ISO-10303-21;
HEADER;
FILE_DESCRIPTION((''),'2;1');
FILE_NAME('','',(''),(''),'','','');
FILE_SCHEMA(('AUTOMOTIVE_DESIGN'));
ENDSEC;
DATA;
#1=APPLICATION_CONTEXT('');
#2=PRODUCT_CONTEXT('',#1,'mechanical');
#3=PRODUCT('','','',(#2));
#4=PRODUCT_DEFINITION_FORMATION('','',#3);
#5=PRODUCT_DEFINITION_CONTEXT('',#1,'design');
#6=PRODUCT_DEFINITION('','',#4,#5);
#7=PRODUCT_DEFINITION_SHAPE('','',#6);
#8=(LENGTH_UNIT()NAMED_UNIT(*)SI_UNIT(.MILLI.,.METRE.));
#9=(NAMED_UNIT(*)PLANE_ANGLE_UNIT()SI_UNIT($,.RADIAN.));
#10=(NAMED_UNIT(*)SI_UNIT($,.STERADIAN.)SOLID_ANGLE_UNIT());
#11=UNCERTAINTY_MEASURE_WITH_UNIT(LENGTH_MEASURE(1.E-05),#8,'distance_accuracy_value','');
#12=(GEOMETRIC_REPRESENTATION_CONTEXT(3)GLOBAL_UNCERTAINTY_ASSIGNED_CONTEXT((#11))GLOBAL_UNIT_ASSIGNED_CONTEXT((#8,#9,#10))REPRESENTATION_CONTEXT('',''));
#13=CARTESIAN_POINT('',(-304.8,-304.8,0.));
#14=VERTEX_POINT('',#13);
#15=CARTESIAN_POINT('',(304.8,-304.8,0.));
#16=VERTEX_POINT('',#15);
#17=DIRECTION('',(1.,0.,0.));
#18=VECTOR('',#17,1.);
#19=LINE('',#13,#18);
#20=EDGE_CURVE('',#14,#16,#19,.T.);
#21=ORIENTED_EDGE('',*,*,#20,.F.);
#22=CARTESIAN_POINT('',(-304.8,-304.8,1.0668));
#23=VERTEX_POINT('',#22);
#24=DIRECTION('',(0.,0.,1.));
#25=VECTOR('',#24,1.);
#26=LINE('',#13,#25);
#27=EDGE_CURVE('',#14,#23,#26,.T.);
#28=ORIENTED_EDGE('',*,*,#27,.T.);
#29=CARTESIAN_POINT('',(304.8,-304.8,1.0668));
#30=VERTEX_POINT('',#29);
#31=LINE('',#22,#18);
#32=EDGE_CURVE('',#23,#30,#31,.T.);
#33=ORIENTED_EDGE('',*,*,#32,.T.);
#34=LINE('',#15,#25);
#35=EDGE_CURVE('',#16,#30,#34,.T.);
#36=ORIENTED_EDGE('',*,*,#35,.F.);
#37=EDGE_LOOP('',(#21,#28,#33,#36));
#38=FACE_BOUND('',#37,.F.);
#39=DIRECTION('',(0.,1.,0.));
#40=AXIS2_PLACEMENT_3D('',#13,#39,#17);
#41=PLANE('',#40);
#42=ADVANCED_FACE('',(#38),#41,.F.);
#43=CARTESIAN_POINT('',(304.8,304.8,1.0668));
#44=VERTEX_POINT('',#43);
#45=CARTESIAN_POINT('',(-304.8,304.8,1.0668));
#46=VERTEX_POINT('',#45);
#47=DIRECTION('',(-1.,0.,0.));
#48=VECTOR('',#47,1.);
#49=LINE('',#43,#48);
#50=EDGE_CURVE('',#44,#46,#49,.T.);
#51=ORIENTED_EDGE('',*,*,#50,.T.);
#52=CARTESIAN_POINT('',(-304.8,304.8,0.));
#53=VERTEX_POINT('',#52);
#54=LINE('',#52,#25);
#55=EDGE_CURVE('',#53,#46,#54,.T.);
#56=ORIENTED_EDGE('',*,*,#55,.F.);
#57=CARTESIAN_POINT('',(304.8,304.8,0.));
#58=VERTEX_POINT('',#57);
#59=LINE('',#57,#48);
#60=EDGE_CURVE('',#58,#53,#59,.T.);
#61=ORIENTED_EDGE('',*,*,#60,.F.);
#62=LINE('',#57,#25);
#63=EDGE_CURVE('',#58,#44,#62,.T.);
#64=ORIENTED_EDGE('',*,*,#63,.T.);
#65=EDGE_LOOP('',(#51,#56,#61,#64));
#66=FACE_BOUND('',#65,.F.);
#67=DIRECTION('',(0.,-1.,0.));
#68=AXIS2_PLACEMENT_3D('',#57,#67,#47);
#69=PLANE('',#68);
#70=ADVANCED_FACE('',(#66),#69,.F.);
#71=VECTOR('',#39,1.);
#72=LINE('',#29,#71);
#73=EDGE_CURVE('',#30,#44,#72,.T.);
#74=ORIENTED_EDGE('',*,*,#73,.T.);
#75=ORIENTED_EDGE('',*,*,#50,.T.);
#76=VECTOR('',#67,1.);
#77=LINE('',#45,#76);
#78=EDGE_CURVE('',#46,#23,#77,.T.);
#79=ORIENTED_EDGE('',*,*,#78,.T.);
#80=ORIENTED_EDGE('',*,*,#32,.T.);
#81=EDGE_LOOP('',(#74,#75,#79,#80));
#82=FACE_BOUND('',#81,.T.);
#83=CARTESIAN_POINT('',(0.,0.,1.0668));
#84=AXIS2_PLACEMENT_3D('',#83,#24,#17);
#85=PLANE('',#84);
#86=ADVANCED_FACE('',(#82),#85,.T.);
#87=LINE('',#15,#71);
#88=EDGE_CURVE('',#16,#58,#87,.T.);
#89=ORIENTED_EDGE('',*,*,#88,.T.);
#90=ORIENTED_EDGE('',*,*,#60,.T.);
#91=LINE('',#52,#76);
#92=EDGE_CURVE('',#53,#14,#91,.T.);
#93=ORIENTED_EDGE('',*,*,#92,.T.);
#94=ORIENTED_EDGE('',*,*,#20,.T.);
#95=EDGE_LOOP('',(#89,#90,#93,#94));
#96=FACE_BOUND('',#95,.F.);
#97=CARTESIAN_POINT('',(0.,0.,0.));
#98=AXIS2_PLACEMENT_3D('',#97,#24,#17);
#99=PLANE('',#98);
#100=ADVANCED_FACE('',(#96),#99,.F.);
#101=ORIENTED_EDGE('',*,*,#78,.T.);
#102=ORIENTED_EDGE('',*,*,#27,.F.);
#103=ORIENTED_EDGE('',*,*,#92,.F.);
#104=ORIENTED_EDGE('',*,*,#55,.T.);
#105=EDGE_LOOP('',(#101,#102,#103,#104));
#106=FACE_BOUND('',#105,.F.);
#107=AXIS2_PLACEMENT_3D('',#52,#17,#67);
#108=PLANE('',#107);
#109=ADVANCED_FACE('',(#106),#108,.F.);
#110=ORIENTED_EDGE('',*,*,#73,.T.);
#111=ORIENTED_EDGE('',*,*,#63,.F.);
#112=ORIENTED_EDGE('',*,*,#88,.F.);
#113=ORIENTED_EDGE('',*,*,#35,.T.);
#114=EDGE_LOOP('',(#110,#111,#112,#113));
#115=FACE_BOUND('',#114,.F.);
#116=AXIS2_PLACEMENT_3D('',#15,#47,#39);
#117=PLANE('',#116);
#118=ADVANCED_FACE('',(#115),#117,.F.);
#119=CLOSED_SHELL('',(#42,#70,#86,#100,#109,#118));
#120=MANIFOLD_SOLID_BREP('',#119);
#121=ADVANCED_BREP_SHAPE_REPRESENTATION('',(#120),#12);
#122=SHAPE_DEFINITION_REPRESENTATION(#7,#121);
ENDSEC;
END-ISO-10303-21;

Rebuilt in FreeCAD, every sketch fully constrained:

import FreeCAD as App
import Part
import Sketcher
from FreeCAD import Vector
Q = App.Units.Quantity

doc = App.newDocument("Part")
params = doc.addObject("Spreadsheet::Sheet", "Params")
for row, (alias, value) in enumerate([
    ("sketch1_width", "24 in"),
    ("pad1_length", "0.042 in"),
], start=1):
    params.set(f"A{row}", alias)
    params.set(f"B{row}", "=" + value)
    params.setAlias(f"B{row}", alias)

body = doc.addObject("PartDesign::Body", "Body")

sketch1 = doc.addObject("Sketcher::SketchObject", "Sketch")
body.addObject(sketch1)
sketch1.AttachmentSupport = (doc.XY_Plane, [""])
sketch1.MapMode = "FlatFace"
sketch1.addGeometry(Part.LineSegment(Vector(-304.8, 304.8, 0), Vector(-304.8, -304.8, 0)), False)
sketch1.addGeometry(Part.LineSegment(Vector(-304.8, -304.8, 0), Vector(304.8, -304.8, 0)), False)
sketch1.addGeometry(Part.LineSegment(Vector(304.8, -304.8, 0), Vector(304.8, 304.8, 0)), False)
sketch1.addGeometry(Part.LineSegment(Vector(304.8, 304.8, 0), Vector(-304.8, 304.8, 0)), False)
sketch1.addConstraint(Sketcher.Constraint("Coincident", 0, 2, 1, 1))
sketch1.addConstraint(Sketcher.Constraint("Coincident", 1, 2, 2, 1))
sketch1.addConstraint(Sketcher.Constraint("Coincident", 2, 2, 3, 1))
sketch1.addConstraint(Sketcher.Constraint("Coincident", 3, 2, 0, 1))
sketch1.addConstraint(Sketcher.Constraint("Vertical", 0))
sketch1.addConstraint(Sketcher.Constraint("Horizontal", 1))
sketch1.addConstraint(Sketcher.Constraint("Vertical", 2))
sketch1.addConstraint(Sketcher.Constraint("Horizontal", 3))
sketch1.addConstraint(Sketcher.Constraint("Symmetric", 0, 2, 2, 2, -1, 1))
sketch1.addConstraint(Sketcher.Constraint("Equal", 3, 0))
sketch1.addConstraint(Sketcher.Constraint("DistanceX", 1, 1, 1, 2, Q("24 in")))
sketch1.setExpression("Constraints[10]", "Params.sketch1_width")
pad1 = doc.addObject("PartDesign::Pad", "Pad")
body.addObject(pad1)
pad1.Profile = sketch1
pad1.setExpression("Length", "Params.pad1_length")

doc.recompute()
